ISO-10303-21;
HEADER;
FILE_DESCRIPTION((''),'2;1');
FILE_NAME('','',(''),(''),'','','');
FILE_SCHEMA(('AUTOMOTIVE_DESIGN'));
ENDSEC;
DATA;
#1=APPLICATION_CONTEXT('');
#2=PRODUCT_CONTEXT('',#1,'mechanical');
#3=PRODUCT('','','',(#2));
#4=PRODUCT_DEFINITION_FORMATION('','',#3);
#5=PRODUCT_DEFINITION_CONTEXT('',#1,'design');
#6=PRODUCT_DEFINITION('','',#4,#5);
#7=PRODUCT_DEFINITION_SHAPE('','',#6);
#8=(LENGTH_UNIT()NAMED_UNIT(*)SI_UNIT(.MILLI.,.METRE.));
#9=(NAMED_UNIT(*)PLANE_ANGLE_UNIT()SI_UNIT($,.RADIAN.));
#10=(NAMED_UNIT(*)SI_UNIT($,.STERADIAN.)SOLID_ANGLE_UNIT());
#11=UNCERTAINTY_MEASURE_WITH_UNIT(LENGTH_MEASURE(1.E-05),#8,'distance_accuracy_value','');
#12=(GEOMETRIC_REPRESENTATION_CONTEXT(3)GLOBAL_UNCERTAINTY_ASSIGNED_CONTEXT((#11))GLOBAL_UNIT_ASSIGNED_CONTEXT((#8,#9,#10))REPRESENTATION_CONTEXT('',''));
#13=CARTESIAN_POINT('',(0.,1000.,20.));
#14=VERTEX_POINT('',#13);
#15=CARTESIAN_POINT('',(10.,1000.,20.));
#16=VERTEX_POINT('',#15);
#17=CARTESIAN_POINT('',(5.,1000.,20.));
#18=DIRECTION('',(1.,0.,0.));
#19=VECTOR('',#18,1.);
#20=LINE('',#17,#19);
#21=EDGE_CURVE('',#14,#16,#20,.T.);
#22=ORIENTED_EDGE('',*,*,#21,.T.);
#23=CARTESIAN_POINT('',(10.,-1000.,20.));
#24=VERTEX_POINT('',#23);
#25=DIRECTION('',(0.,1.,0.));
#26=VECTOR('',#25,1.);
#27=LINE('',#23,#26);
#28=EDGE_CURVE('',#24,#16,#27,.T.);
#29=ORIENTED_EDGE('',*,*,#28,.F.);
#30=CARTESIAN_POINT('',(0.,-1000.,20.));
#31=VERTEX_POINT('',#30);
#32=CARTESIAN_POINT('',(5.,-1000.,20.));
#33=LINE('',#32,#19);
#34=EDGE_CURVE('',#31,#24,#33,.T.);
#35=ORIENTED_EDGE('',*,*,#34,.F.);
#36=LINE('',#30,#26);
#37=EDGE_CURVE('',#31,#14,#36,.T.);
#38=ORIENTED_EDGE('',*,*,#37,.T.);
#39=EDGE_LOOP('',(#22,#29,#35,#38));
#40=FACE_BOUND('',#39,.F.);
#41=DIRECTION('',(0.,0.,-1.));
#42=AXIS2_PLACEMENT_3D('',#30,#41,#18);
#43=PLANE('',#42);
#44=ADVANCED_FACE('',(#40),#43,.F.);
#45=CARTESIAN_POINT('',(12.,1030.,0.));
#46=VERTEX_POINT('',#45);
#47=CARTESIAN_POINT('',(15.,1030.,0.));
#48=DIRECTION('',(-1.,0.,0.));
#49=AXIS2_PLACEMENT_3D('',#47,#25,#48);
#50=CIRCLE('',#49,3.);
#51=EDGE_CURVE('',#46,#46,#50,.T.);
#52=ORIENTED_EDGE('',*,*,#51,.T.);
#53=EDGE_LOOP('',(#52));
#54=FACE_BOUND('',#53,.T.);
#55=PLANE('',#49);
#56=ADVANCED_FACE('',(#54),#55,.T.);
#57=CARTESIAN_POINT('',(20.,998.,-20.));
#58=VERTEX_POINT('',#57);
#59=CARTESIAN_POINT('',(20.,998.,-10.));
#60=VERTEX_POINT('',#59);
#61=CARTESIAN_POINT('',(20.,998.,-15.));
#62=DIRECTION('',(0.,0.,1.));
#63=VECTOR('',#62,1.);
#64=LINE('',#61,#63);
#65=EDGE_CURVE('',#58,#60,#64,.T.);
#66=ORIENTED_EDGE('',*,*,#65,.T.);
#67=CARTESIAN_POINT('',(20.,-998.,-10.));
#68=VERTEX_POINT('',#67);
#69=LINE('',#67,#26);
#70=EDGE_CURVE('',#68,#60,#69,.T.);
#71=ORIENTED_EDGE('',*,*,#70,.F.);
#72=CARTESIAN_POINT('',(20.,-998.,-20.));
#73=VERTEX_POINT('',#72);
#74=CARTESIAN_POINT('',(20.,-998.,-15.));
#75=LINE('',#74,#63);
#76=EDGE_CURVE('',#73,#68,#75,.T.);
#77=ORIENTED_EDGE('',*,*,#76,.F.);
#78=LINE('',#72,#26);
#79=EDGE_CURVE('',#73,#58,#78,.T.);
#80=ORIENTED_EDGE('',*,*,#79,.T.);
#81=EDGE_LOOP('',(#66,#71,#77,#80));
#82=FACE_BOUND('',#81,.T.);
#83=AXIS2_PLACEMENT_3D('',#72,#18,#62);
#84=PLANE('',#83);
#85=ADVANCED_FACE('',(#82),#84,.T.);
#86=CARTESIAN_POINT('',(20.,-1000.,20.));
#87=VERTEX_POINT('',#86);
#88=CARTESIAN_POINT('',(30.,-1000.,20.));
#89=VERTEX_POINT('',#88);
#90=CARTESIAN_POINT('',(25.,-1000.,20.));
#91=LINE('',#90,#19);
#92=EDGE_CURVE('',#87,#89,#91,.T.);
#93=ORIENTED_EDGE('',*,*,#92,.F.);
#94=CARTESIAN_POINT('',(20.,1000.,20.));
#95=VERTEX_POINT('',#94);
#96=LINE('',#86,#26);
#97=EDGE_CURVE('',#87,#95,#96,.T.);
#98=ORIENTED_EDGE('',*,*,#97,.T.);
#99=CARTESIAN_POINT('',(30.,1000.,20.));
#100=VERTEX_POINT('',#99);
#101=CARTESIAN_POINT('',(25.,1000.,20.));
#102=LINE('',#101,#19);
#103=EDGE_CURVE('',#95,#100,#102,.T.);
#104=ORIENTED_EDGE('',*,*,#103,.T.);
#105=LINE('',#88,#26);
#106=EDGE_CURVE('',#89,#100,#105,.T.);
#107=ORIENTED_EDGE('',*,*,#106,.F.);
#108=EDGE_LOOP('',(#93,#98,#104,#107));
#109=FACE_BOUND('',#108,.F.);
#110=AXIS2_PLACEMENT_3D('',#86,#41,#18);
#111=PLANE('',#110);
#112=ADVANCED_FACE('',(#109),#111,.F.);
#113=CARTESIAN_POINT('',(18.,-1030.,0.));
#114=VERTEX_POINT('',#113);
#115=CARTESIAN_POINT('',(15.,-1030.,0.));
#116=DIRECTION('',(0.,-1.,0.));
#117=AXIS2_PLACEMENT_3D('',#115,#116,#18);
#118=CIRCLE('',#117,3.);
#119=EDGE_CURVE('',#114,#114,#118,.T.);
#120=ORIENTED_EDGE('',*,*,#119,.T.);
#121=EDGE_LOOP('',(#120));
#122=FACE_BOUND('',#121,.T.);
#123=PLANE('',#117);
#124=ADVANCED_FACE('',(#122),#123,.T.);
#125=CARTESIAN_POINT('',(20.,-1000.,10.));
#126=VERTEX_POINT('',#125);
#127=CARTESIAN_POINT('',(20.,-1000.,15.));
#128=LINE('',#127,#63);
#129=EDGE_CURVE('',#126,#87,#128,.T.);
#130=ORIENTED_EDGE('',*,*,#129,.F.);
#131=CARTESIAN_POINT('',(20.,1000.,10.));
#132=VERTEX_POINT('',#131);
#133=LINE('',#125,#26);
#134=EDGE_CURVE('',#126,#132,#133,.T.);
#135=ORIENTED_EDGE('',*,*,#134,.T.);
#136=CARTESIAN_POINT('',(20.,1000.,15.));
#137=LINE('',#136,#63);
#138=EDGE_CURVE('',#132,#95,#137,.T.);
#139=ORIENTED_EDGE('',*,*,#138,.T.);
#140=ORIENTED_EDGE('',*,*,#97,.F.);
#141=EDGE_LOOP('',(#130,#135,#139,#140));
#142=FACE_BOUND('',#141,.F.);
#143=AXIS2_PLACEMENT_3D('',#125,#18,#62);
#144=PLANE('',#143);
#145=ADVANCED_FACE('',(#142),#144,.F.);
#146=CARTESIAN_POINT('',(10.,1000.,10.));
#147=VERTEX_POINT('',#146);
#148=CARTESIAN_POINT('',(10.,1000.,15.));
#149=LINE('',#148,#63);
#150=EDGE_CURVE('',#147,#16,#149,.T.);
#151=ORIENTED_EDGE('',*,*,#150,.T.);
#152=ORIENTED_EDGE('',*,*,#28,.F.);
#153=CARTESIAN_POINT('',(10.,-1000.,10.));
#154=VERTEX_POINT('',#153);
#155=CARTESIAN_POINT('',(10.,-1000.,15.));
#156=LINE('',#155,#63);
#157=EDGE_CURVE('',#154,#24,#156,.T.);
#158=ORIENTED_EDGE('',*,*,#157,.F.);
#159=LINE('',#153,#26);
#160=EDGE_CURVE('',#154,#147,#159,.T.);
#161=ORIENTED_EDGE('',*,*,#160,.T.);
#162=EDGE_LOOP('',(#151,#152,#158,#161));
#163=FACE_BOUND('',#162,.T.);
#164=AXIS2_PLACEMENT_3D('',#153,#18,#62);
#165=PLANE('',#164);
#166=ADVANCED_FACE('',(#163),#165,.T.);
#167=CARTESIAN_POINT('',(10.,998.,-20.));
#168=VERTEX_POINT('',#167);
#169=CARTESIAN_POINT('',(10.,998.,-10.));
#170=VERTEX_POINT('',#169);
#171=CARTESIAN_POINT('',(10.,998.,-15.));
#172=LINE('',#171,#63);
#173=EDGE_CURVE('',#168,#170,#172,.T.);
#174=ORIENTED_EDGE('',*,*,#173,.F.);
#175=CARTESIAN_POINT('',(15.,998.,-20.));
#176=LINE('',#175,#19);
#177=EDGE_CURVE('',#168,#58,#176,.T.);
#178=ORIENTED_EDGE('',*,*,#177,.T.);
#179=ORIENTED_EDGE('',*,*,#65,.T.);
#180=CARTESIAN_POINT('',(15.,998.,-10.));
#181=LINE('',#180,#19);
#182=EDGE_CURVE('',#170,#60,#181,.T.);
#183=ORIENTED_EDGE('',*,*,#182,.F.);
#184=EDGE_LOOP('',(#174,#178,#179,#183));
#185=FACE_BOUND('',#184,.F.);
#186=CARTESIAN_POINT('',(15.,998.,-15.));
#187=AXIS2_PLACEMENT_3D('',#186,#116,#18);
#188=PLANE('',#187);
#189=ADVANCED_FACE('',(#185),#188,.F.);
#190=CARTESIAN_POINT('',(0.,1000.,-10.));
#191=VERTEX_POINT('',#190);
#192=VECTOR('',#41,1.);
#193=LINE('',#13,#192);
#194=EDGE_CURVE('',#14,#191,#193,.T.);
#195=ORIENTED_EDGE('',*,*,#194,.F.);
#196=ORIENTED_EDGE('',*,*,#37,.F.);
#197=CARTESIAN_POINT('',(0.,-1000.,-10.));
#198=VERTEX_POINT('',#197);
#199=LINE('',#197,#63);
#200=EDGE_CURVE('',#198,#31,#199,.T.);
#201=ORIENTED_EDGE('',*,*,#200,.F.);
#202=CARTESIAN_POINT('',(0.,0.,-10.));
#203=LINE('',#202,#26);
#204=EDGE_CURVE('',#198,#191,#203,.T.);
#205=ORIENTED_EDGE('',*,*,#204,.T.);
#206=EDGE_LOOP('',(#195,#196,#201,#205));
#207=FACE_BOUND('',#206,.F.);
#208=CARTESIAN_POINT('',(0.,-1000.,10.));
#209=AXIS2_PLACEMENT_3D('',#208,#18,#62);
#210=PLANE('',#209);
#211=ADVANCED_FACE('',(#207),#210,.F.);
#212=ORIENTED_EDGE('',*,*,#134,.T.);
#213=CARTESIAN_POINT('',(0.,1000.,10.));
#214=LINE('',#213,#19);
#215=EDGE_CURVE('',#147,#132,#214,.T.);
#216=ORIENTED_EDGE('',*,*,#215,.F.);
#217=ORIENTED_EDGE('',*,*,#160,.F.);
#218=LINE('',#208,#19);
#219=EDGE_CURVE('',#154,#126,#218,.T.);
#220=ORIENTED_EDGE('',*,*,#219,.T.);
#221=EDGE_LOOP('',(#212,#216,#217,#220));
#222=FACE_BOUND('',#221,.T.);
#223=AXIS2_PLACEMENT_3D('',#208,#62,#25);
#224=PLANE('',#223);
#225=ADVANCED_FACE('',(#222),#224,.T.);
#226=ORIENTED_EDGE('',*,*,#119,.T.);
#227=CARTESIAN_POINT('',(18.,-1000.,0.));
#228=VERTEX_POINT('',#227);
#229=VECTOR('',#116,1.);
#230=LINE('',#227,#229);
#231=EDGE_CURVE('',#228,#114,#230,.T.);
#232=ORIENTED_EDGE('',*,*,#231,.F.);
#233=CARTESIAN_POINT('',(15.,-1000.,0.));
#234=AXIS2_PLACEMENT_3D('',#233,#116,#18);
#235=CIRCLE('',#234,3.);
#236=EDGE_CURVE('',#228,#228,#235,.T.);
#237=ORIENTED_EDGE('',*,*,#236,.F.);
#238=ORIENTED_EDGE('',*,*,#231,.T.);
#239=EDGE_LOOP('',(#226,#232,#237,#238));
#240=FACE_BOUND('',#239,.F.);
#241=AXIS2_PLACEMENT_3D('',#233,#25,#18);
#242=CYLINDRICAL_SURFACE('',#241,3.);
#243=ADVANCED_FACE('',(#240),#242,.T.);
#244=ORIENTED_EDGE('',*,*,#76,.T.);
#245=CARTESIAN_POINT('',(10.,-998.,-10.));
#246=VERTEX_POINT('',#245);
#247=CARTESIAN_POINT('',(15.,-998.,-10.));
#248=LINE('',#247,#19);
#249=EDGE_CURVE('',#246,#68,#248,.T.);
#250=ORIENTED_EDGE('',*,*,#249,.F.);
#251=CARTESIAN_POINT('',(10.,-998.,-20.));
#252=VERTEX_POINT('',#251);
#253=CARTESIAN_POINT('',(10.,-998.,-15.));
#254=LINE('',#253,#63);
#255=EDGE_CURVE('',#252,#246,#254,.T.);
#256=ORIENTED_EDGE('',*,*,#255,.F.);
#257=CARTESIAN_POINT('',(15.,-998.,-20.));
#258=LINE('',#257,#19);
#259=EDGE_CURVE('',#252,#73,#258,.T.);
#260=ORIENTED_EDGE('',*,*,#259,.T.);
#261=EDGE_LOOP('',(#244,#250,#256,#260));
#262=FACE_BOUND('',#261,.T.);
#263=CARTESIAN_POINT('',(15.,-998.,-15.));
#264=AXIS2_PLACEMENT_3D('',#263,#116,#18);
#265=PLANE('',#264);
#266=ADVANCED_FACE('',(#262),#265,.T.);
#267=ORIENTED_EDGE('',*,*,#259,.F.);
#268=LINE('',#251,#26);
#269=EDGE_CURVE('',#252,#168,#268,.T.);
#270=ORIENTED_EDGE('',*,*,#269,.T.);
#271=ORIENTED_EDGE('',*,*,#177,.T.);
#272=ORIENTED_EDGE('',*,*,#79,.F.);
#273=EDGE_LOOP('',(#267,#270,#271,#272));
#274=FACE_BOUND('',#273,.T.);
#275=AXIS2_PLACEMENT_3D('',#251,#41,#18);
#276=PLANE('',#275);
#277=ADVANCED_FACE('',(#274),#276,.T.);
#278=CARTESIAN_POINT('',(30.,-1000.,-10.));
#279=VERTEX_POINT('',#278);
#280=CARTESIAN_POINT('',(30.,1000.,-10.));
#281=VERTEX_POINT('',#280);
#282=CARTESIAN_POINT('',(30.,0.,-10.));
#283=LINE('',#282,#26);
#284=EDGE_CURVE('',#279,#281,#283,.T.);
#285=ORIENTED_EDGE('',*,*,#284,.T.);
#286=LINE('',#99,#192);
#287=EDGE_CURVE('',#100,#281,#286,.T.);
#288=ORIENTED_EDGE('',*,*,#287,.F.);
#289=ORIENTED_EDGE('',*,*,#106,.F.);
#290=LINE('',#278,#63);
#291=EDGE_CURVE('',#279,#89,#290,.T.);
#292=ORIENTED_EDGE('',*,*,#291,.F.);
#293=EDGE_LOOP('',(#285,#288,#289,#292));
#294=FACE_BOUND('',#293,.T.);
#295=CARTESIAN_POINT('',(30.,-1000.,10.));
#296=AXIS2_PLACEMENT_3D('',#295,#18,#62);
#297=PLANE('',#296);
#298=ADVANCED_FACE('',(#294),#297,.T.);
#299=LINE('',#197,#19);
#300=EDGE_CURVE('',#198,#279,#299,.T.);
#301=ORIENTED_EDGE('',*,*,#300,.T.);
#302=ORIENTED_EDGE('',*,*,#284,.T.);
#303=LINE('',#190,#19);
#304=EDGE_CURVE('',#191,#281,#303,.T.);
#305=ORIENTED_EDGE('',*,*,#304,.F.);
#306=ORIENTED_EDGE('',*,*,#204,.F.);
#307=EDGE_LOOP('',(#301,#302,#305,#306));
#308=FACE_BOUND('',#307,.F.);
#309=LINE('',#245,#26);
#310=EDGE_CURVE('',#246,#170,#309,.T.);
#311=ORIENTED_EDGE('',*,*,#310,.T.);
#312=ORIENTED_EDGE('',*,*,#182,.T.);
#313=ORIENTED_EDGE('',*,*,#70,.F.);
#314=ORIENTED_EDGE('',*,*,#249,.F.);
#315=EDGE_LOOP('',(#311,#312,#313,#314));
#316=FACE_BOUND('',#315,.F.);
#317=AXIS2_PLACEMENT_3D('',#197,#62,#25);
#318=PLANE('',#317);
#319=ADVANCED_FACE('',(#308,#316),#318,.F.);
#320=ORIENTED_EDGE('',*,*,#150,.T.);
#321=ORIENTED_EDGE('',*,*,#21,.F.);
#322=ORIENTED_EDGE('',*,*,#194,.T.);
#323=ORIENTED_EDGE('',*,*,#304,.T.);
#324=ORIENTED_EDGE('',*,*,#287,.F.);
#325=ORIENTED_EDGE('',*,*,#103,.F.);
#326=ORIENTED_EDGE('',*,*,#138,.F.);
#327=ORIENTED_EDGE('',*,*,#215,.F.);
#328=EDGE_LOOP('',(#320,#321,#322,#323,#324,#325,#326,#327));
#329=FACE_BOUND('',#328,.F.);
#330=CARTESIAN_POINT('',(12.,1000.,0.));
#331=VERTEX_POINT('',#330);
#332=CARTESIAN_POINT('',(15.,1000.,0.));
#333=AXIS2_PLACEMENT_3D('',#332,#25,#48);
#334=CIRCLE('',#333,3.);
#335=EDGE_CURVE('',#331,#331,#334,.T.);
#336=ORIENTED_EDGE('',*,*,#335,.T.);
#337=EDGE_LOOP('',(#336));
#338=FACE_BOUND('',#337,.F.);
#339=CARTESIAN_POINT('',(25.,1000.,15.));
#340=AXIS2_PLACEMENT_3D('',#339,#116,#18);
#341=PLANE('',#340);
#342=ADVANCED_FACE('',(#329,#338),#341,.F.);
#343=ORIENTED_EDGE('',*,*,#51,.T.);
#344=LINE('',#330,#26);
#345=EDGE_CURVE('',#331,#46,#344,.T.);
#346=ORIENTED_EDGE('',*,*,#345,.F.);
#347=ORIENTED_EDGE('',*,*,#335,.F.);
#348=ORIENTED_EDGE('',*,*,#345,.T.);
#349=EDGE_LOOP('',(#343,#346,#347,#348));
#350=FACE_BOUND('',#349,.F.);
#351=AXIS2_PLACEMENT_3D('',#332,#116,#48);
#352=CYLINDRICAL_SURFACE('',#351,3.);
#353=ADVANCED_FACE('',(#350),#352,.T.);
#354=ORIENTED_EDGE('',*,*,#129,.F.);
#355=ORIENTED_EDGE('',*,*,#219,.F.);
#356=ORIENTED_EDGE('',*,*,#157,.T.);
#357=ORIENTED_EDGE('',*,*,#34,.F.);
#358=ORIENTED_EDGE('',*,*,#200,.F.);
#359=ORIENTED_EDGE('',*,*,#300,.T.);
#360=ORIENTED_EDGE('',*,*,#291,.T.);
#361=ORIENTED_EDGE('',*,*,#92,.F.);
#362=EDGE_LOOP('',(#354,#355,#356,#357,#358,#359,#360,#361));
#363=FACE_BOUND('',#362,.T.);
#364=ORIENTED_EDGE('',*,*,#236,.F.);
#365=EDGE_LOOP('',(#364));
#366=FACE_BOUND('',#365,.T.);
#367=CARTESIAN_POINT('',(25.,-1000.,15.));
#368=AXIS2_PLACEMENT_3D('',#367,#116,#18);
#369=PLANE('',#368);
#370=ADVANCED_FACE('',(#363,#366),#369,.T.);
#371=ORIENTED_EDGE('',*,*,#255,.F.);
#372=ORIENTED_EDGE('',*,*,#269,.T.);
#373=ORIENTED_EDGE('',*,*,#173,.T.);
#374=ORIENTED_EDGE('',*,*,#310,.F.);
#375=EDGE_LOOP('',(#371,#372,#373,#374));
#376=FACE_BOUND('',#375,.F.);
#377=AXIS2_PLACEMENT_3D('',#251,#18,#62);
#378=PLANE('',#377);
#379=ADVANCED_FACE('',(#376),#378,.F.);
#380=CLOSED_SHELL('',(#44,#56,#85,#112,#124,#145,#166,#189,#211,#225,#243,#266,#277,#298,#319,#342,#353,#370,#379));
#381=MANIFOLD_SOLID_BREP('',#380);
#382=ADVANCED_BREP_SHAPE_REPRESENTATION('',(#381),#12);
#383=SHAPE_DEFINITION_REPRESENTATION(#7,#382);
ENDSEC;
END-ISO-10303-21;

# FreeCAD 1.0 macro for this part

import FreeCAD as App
import Part
import Sketcher
from FreeCAD import Vector
Q = App.Units.Quantity

doc = App.newDocument("Part")
body = doc.addObject("PartDesign::Body", "Body")

sketch1 = doc.addObject("Sketcher::SketchObject", "Sketch")
body.addObject(sketch1)
sketch1.AttachmentSupport = (doc.YZ_Plane, [""])
sketch1.MapMode = "FlatFace"
sketch1.addGeometry(Part.LineSegment(Vector(-1000, 10, 0), Vector(-1000, -10, 0)), False)
sketch1.addGeometry(Part.LineSegment(Vector(-1000, -10, 0), Vector(1000, -10, 0)), False)
sketch1.addGeometry(Part.LineSegment(Vector(1000, -10, 0), Vector(1000, 10, 0)), False)
sketch1.addGeometry(Part.LineSegment(Vector(1000, 10, 0), Vector(-1000, 10, 0)), False)
sketch1.addConstraint(Sketcher.Constraint("Coincident", 0, 2, 1, 1))
sketch1.addConstraint(Sketcher.Constraint("Coincident", 1, 2, 2, 1))
sketch1.addConstraint(Sketcher.Constraint("Coincident", 2, 2, 3, 1))
sketch1.addConstraint(Sketcher.Constraint("Coincident", 3, 2, 0, 1))
sketch1.addConstraint(Sketcher.Constraint("Vertical", 0))
sketch1.addConstraint(Sketcher.Constraint("Horizontal", 1))
sketch1.addConstraint(Sketcher.Constraint("Vertical", 2))
sketch1.addConstraint(Sketcher.Constraint("Horizontal", 3))
sketch1.addConstraint(Sketcher.Constraint("Symmetric", 0, 2, 2, 2, -1, 1))
sketch1.addConstraint(Sketcher.Constraint("DistanceX", 1, 1, 1, 2, Q("2000 mm")))
sketch1.addConstraint(Sketcher.Constraint("DistanceY", 0, 2, 0, 1, Q("20 mm")))
pad1 = doc.addObject("PartDesign::Pad", "Pad")
body.addObject(pad1)
pad1.Profile = sketch1
pad1.Length = 30

sketch2 = doc.addObject("Sketcher::SketchObject", "Sketch001")
body.addObject(sketch2)
sketch2.AttachmentSupport = (doc.XZ_Plane, [""])
sketch2.MapMode = "FlatFace"
sketch2.AttachmentOffset = App.Placement(Vector(0, 0, 1000), App.Rotation())
sketch2.addGeometry(Part.LineSegment(Vector(0, 20, 0), Vector(0, 10, 0)), False)
sketch2.addGeometry(Part.LineSegment(Vector(0, 10, 0), Vector(10, 10, 0)), False)
sketch2.addGeometry(Part.LineSegment(Vector(10, 10, 0), Vector(10, 20, 0)), False)
sketch2.addGeometry(Part.LineSegment(Vector(10, 20, 0), Vector(0, 20, 0)), False)
sketch2.addConstraint(Sketcher.Constraint("Coincident", 0, 2, 1, 1))
sketch2.addConstraint(Sketcher.Constraint("Coincident", 1, 2, 2, 1))
sketch2.addConstraint(Sketcher.Constraint("Coincident", 2, 2, 3, 1))
sketch2.addConstraint(Sketcher.Constraint("Coincident", 3, 2, 0, 1))
sketch2.addConstraint(Sketcher.Constraint("Vertical", 0))
sketch2.addConstraint(Sketcher.Constraint("Horizontal", 1))
sketch2.addConstraint(Sketcher.Constraint("Vertical", 2))
sketch2.addConstraint(Sketcher.Constraint("Horizontal", 3))
sketch2.addConstraint(Sketcher.Constraint("PointOnObject", 0, 2, -2))
sketch2.addConstraint(Sketcher.Constraint("Equal", 3, 0))
sketch2.addConstraint(Sketcher.Constraint("DistanceX", 1, 1, 1, 2, Q("10 mm")))
sketch2.addConstraint(Sketcher.Constraint("DistanceY", -1, 1, 0, 2, Q("10 mm")))
pad2 = doc.addObject("PartDesign::Pad", "Pad001")
body.addObject(pad2)
pad2.Profile = sketch2
pad2.Length = 2000
pad2.Reversed = True

sketch3 = doc.addObject("Sketcher::SketchObject", "Sketch002")
body.addObject(sketch3)
sketch3.AttachmentSupport = (doc.XZ_Plane, [""])
sketch3.MapMode = "FlatFace"
sketch3.AttachmentOffset = App.Placement(Vector(0, 0, 1000), App.Rotation())
sketch3.addGeometry(Part.LineSegment(Vector(20, 20, 0), Vector(20, 10, 0)), False)
sketch3.addGeometry(Part.LineSegment(Vector(20, 10, 0), Vector(30, 10, 0)), False)
sketch3.addGeometry(Part.LineSegment(Vector(30, 10, 0), Vector(30, 20, 0)), False)
sketch3.addGeometry(Part.LineSegment(Vector(30, 20, 0), Vector(20, 20, 0)), False)
sketch3.addConstraint(Sketcher.Constraint("Coincident", 0, 2, 1, 1))
sketch3.addConstraint(Sketcher.Constraint("Coincident", 1, 2, 2, 1))
sketch3.addConstraint(Sketcher.Constraint("Coincident", 2, 2, 3, 1))
sketch3.addConstraint(Sketcher.Constraint("Coincident", 3, 2, 0, 1))
sketch3.addConstraint(Sketcher.Constraint("Vertical", 0))
sketch3.addConstraint(Sketcher.Constraint("Horizontal", 1))
sketch3.addConstraint(Sketcher.Constraint("Vertical", 2))
sketch3.addConstraint(Sketcher.Constraint("Horizontal", 3))
sketch3.addConstraint(Sketcher.Constraint("Equal", 3, 0))
sketch3.addConstraint(Sketcher.Constraint("DistanceX", 1, 1, 1, 2, Q("10 mm")))
sketch3.addConstraint(Sketcher.Constraint("DistanceX", -1, 1, 0, 2, Q("20 mm")))
sketch3.addConstraint(Sketcher.Constraint("DistanceY", -1, 1, 0, 2, Q("10 mm")))
pad3 = doc.addObject("PartDesign::Pad", "Pad002")
body.addObject(pad3)
pad3.Profile = sketch3
pad3.Length = 2000
pad3.Reversed = True

sketch4 = doc.addObject("Sketcher::SketchObject", "Sketch003")
body.addObject(sketch4)
sketch4.AttachmentSupport = (doc.XZ_Plane, [""])
sketch4.MapMode = "FlatFace"
sketch4.AttachmentOffset = App.Placement(Vector(0, 0, 998), App.Rotation())
sketch4.addGeometry(Part.LineSegment(Vector(10, -10, 0), Vector(10, -20, 0)), False)
sketch4.addGeometry(Part.LineSegment(Vector(10, -20, 0), Vector(20, -20, 0)), False)
sketch4.addGeometry(Part.LineSegment(Vector(20, -20, 0), Vector(20, -10, 0)), False)
sketch4.addGeometry(Part.LineSegment(Vector(20, -10, 0), Vector(10, -10, 0)), False)
sketch4.addConstraint(Sketcher.Constraint("Coincident", 0, 2, 1, 1))
sketch4.addConstraint(Sketcher.Constraint("Coincident", 1, 2, 2, 1))
sketch4.addConstraint(Sketcher.Constraint("Coincident", 2, 2, 3, 1))
sketch4.addConstraint(Sketcher.Constraint("Coincident", 3, 2, 0, 1))
sketch4.addConstraint(Sketcher.Constraint("Vertical", 0))
sketch4.addConstraint(Sketcher.Constraint("Horizontal", 1))
sketch4.addConstraint(Sketcher.Constraint("Vertical", 2))
sketch4.addConstraint(Sketcher.Constraint("Horizontal", 3))
sketch4.addConstraint(Sketcher.Constraint("Equal", 3, 0))
sketch4.addConstraint(Sketcher.Constraint("DistanceX", 1, 1, 1, 2, Q("10 mm")))
sketch4.addConstraint(Sketcher.Constraint("DistanceX", -1, 1, 0, 2, Q("10 mm")))
sketch4.addConstraint(Sketcher.Constraint("DistanceY", 0, 2, -1, 1, Q("20 mm")))
pad4 = doc.addObject("PartDesign::Pad", "Pad003")
body.addObject(pad4)
pad4.Profile = sketch4
pad4.Length = 1996
pad4.Reversed = True

sketch5 = doc.addObject("Sketcher::SketchObject", "Sketch004")
body.addObject(sketch5)
sketch5.AttachmentSupport = (doc.XZ_Plane, [""])
sketch5.MapMode = "FlatFace"
sketch5.AttachmentOffset = App.Placement(Vector(0, 0, 1000), App.Rotation())
sketch5.addGeometry(Part.Circle(Vector(15, 0, 0), Vector(0, 0, 1), 3), False)
sketch5.addConstraint(Sketcher.Constraint("PointOnObject", 0, 3, -1))
sketch5.addConstraint(Sketcher.Constraint("Diameter", 0, Q("6 mm")))
sketch5.addConstraint(Sketcher.Constraint("DistanceX", -1, 1, 0, 3, Q("15 mm")))
pad5 = doc.addObject("PartDesign::Pad", "Pad004")
body.addObject(pad5)
pad5.Profile = sketch5
pad5.Length = 30

sketch6 = doc.addObject("Sketcher::SketchObject", "Sketch005")
body.addObject(sketch6)
sketch6.AttachmentSupport = (doc.XZ_Plane, [""])
sketch6.MapMode = "FlatFace"
sketch6.AttachmentOffset = App.Placement(Vector(0, 0, -1000), App.Rotation())
sketch6.addGeometry(Part.Circle(Vector(15, 0, 0), Vector(0, 0, 1), 3), False)
sketch6.addConstraint(Sketcher.Constraint("PointOnObject", 0, 3, -1))
sketch6.addConstraint(Sketcher.Constraint("Diameter", 0, Q("6 mm")))
sketch6.addConstraint(Sketcher.Constraint("DistanceX", -1, 1, 0, 3, Q("15 mm")))
pad6 = doc.addObject("PartDesign::Pad", "Pad005")
body.addObject(pad6)
pad6.Profile = sketch6
pad6.Length = 30
pad6.Reversed = True

doc.recompute()
